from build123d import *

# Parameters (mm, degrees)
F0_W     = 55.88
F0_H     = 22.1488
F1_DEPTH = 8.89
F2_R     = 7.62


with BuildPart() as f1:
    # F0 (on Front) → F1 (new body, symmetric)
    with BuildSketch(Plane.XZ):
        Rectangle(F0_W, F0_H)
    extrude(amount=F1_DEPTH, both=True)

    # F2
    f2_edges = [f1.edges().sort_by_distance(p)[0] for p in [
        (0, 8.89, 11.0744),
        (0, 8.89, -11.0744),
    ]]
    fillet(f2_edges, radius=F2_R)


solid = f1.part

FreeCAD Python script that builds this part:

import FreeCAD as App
import Part
import Sketcher
from FreeCAD import Vector
Q = App.Units.Quantity


def edges_at(feature, points):
    """Names of the edges that pass closest to the given points."""
    edges = feature.Shape.Edges
    near = lambda p: min(range(len(edges)), key=lambda i: edges[i].distToShape(Part.Vertex(*p))[0])
    return sorted({f"Edge{near(p) + 1}" for p in points})

doc = App.newDocument("Part")
body = doc.addObject("PartDesign::Body", "Body")

# Sketch on XZ plane
sketch1 = body.newObject("Sketcher::SketchObject", "Sketch")
sketch1.AttachmentSupport = (doc.getObject("XZ_Plane"), [""])
sketch1.MapMode = "FlatFace"
sketch1.addGeometry(Part.LineSegment(Vector(-28, 11, 0), Vector(-28, -11, 0)), False)
sketch1.addGeometry(Part.LineSegment(Vector(-28, -11, 0), Vector(28, -11, 0)), False)
sketch1.addGeometry(Part.LineSegment(Vector(28, -11, 0), Vector(28, 11, 0)), False)
sketch1.addGeometry(Part.LineSegment(Vector(28, 11, 0), Vector(-28, 11, 0)), False)
sketch1.addConstraint(Sketcher.Constraint("Coincident", 0, 2, 1, 1))
sketch1.addConstraint(Sketcher.Constraint("Coincident", 1, 2, 2, 1))
sketch1.addConstraint(Sketcher.Constraint("Coincident", 2, 2, 3, 1))
sketch1.addConstraint(Sketcher.Constraint("Coincident", 3, 2, 0, 1))
sketch1.addConstraint(Sketcher.Constraint("Vertical", 0))
sketch1.addConstraint(Sketcher.Constraint("Horizontal", 1))
sketch1.addConstraint(Sketcher.Constraint("Vertical", 2))
sketch1.addConstraint(Sketcher.Constraint("Horizontal", 3))
sketch1.addConstraint(Sketcher.Constraint("Symmetric", 0, 2, 2, 2, -1, 1))
sketch1.addConstraint(Sketcher.Constraint("DistanceX", 1, 1, 1, 2, Q("2.2 in")))
sketch1.addConstraint(Sketcher.Constraint("DistanceY", 0, 2, 0, 1, Q("0.872 in")))
pad1 = body.newObject("PartDesign::Pad", "Pad")
pad1.Profile = sketch1
pad1.Length = Q("0.7 in")
pad1.Midplane = True
doc.recompute()

fillet = body.newObject("PartDesign::Fillet", "Fillet")
fillet.Base = (pad1, edges_at(pad1, [(0, 8.89, 11.074), (0, 8.89, -11.074)]))
fillet.Radius = Q("0.3 in")

doc.recompute()
